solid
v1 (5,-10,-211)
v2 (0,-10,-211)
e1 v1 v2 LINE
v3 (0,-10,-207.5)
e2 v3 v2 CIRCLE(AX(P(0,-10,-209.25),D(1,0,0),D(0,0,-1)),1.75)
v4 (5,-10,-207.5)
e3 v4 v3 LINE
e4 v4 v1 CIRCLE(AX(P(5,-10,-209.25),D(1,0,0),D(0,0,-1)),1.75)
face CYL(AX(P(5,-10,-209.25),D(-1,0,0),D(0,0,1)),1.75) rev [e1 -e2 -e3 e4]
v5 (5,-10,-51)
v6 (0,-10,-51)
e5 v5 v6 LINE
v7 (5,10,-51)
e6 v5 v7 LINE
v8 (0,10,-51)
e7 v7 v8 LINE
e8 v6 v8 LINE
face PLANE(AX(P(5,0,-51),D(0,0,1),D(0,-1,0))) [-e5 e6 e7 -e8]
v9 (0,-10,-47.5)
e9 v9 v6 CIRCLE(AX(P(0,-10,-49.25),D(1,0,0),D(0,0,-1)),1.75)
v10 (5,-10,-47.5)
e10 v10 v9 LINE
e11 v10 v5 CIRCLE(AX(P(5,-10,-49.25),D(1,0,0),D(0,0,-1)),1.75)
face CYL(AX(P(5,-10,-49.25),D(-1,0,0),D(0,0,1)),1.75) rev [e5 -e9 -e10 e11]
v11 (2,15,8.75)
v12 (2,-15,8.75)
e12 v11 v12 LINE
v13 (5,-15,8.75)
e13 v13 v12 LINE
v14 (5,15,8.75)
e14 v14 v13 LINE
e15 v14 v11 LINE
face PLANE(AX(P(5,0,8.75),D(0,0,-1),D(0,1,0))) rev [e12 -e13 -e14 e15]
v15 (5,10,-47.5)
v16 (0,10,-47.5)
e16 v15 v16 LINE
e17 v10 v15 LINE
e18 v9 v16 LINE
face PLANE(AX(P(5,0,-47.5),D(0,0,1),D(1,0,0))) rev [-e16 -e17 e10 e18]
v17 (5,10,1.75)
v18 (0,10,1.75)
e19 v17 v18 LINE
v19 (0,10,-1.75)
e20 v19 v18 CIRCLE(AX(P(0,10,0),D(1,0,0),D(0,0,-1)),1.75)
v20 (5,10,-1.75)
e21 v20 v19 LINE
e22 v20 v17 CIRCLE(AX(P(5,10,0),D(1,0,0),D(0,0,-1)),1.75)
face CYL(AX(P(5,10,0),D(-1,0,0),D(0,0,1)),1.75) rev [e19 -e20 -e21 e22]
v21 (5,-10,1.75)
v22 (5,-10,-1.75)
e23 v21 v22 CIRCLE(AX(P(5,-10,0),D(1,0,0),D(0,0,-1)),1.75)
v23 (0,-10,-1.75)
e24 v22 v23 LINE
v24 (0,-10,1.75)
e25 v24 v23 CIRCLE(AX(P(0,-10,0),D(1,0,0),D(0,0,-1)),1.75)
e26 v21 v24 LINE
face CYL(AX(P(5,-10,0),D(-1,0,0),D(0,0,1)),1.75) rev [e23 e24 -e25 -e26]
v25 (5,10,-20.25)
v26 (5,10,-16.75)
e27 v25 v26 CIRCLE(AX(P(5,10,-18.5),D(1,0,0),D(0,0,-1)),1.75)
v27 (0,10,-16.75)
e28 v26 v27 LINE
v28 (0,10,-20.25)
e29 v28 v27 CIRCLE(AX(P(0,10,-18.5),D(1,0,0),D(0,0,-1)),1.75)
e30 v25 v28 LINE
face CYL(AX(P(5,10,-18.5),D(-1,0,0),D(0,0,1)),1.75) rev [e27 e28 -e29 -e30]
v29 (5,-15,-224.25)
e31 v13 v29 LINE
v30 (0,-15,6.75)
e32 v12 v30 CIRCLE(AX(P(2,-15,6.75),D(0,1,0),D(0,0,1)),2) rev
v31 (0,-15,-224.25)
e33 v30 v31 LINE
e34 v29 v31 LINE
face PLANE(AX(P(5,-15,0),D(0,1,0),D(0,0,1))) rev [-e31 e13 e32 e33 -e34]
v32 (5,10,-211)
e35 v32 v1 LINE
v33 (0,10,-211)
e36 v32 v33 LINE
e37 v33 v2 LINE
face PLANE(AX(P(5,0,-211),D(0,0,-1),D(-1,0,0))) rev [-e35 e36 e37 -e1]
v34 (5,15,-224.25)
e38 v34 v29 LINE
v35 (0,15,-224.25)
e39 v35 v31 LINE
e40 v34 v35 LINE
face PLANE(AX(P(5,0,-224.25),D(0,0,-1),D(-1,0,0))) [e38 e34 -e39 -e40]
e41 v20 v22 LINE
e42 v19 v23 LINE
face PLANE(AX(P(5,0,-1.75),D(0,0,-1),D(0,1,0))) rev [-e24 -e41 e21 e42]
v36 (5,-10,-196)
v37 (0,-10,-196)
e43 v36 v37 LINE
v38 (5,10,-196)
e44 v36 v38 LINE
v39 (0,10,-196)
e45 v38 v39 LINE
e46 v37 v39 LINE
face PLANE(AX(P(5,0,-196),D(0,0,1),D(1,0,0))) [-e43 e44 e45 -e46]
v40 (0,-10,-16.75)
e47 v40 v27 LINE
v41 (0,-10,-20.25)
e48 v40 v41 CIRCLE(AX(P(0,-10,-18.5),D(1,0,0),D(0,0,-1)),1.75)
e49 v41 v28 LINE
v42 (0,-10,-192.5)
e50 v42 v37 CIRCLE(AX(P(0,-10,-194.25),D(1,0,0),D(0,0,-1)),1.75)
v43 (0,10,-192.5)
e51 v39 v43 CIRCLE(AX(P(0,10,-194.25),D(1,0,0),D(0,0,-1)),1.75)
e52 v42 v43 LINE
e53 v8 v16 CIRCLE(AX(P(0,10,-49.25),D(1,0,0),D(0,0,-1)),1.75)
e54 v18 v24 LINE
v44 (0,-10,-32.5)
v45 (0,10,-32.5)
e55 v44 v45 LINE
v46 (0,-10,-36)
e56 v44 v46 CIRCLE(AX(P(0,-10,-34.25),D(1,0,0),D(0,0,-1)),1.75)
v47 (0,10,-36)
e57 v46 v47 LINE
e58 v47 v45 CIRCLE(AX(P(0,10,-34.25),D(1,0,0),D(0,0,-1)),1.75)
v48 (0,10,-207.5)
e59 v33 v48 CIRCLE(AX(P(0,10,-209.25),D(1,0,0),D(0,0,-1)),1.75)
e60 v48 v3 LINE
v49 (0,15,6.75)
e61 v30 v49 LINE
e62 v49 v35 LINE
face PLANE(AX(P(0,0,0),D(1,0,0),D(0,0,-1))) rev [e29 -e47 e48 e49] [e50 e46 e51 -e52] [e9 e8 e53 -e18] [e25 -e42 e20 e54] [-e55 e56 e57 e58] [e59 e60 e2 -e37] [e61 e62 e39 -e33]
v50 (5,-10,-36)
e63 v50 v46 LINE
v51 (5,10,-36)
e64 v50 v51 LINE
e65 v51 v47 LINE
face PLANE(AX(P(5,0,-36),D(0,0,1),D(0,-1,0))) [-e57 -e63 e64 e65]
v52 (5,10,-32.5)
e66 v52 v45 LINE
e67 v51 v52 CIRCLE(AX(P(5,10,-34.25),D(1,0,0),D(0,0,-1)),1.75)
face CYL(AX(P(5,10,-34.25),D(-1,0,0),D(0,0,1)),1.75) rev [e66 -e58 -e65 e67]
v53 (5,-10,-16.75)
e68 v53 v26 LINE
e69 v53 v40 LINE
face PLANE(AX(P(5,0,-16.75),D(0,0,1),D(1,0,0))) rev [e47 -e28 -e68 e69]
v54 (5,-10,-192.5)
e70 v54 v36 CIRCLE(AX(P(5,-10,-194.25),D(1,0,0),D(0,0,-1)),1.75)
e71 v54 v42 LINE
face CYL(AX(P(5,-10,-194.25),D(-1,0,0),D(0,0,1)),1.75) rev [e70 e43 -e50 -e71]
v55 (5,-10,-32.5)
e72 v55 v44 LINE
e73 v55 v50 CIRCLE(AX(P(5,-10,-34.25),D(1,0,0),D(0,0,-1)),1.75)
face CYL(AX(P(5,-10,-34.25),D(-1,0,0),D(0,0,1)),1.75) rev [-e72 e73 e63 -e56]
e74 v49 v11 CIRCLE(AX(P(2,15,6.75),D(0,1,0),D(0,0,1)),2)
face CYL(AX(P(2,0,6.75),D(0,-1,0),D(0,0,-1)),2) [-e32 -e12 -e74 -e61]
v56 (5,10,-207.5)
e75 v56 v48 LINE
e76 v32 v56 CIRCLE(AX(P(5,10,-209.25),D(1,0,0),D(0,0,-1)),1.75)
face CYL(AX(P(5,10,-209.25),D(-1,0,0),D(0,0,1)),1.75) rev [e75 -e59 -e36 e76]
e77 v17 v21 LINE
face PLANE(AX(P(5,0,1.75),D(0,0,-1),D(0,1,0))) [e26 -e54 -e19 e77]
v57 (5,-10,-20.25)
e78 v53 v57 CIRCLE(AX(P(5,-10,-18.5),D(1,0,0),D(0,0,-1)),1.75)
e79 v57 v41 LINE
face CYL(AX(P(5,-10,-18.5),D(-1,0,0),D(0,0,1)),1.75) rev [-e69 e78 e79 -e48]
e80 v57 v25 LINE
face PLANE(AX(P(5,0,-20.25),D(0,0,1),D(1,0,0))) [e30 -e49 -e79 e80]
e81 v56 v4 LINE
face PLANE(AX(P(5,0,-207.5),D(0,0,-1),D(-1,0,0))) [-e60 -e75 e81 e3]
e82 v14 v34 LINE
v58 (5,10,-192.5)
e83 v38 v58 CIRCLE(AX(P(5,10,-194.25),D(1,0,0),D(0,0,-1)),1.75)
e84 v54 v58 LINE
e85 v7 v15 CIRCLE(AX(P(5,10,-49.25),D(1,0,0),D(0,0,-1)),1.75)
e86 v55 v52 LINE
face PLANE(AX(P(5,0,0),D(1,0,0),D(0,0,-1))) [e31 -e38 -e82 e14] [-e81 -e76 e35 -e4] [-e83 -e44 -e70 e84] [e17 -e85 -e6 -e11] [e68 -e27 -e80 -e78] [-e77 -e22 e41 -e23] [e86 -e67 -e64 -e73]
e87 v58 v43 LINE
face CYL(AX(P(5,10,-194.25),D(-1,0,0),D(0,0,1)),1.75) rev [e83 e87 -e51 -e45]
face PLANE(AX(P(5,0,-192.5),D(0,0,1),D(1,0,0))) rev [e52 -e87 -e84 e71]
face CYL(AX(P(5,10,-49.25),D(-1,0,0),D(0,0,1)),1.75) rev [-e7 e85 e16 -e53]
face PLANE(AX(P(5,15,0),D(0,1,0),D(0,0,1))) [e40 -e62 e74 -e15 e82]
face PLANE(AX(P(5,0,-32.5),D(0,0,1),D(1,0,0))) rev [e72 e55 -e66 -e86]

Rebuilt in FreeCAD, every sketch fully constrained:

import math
import FreeCAD as App
import Part
import Sketcher
from FreeCAD import Vector


def edges_at(feature, points):
    """Names of the edges that pass closest to the given points."""
    edges = feature.Shape.Edges
    near = lambda p: min(range(len(edges)), key=lambda i: edges[i].distToShape(Part.Vertex(*p))[0])
    return sorted({f"Edge{near(p) + 1}" for p in points})

doc = App.newDocument("Part")
body = doc.addObject("PartDesign::Body", "Body")

sketch1 = doc.addObject("Sketcher::SketchObject", "Sketch")
body.addObject(sketch1)
sketch1.AttachmentSupport = (doc.YZ_Plane, [""])
sketch1.MapMode = "FlatFace"
sketch1.addGeometry(Part.LineSegment(Vector(-15, -224.25, 0), Vector(15, -224.25, 0)), False)
sketch1.addGeometry(Part.LineSegment(Vector(15, -224.25, 0), Vector(15, 8.75, 0)), False)
sketch1.addGeometry(Part.LineSegment(Vector(15, 8.75, 0), Vector(-15, 8.75, 0)), False)
sketch1.addGeometry(Part.LineSegment(Vector(-15, 8.75, 0), Vector(-15, -224.25, 0)), False)
sketch1.addGeometry(Part.ArcOfCircle(Part.Circle(Vector(-10, 0, 0), Vector(0, 0, 1), 1.75), math.radians(90), math.radians(270)), False)
sketch1.addGeometry(Part.LineSegment(Vector(-10, 1.75, 0), Vector(10, 1.75, 0)), False)
sketch1.addGeometry(Part.ArcOfCircle(Part.Circle(Vector(10, 0, 0), Vector(0, 0, 1), 1.75), math.radians(-90), math.radians(90)), False)
sketch1.addGeometry(Part.LineSegment(Vector(10, -1.75, 0), Vector(-10, -1.75, 0)), False)
sketch1.addGeometry(Part.ArcOfCircle(Part.Circle(Vector(-10, -18.5, 0), Vector(0, 0, 1), 1.75), math.radians(90), math.radians(270)), False)
sketch1.addGeometry(Part.LineSegment(Vector(-10, -16.75, 0), Vector(10, -16.75, 0)), False)
sketch1.addGeometry(Part.ArcOfCircle(Part.Circle(Vector(10, -18.5, 0), Vector(0, 0, 1), 1.75), math.radians(-90), math.radians(90)), False)
sketch1.addGeometry(Part.LineSegment(Vector(10, -20.25, 0), Vector(-10, -20.25, 0)), False)
sketch1.addGeometry(Part.ArcOfCircle(Part.Circle(Vector(10, -209.25, 0), Vector(0, 0, 1), 1.75), math.radians(-90), math.radians(90)), False)
sketch1.addGeometry(Part.LineSegment(Vector(10, -211, 0), Vector(-10, -211, 0)), False)
sketch1.addGeometry(Part.ArcOfCircle(Part.Circle(Vector(-10, -209.25, 0), Vector(0, 0, 1), 1.75), math.radians(90), math.radians(270)), False)
sketch1.addGeometry(Part.LineSegment(Vector(-10, -207.5, 0), Vector(10, -207.5, 0)), False)
sketch1.addGeometry(Part.LineSegment(Vector(10, -36, 0), Vector(-10, -36, 0)), False)
sketch1.addGeometry(Part.ArcOfCircle(Part.Circle(Vector(-10, -34.25, 0), Vector(0, 0, 1), 1.75), math.radians(90), math.radians(270)), False)
sketch1.addGeometry(Part.LineSegment(Vector(-10, -32.5, 0), Vector(10, -32.5, 0)), False)
sketch1.addGeometry(Part.ArcOfCircle(Part.Circle(Vector(10, -34.25, 0), Vector(0, 0, 1), 1.75), math.radians(-90), math.radians(90)), False)
sketch1.addGeometry(Part.LineSegment(Vector(10, -51, 0), Vector(-10, -51, 0)), False)
sketch1.addGeometry(Part.ArcOfCircle(Part.Circle(Vector(-10, -49.25, 0), Vector(0, 0, 1), 1.75), math.radians(90), math.radians(270)), False)
sketch1.addGeometry(Part.LineSegment(Vector(-10, -47.5, 0), Vector(10, -47.5, 0)), False)
sketch1.addGeometry(Part.ArcOfCircle(Part.Circle(Vector(10, -49.25, 0), Vector(0, 0, 1), 1.75), math.radians(-90), math.radians(90)), False)
sketch1.addGeometry(Part.LineSegment(Vector(10, -196, 0), Vector(-10, -196, 0)), False)
sketch1.addGeometry(Part.ArcOfCircle(Part.Circle(Vector(-10, -194.25, 0), Vector(0, 0, 1), 1.75), math.radians(90), math.radians(270)), False)
sketch1.addGeometry(Part.LineSegment(Vector(-10, -192.5, 0), Vector(10, -192.5, 0)), False)
sketch1.addGeometry(Part.ArcOfCircle(Part.Circle(Vector(10, -194.25, 0), Vector(0, 0, 1), 1.75), math.radians(-90), math.radians(90)), False)
sketch1.addConstraint(Sketcher.Constraint("Coincident", 0, 2, 1, 1))
sketch1.addConstraint(Sketcher.Constraint("Coincident", 1, 2, 2, 1))
sketch1.addConstraint(Sketcher.Constraint("Coincident", 2, 2, 3, 1))
sketch1.addConstraint(Sketcher.Constraint("Coincident", 3, 2, 0, 1))
sketch1.addConstraint(Sketcher.Constraint("Tangent", 4, 1, 5, 1))
sketch1.addConstraint(Sketcher.Constraint("Tangent", 5, 2, 6, 2))
sketch1.addConstraint(Sketcher.Constraint("Tangent", 6, 1, 7, 1))
sketch1.addConstraint(Sketcher.Constraint("Tangent", 7, 2, 4, 2))
sketch1.addConstraint(Sketcher.Constraint("Tangent", 8, 1, 9, 1))
sketch1.addConstraint(Sketcher.Constraint("Tangent", 9, 2, 10, 2))
sketch1.addConstraint(Sketcher.Constraint("Tangent", 10, 1, 11, 1))
sketch1.addConstraint(Sketcher.Constraint("Tangent", 11, 2, 8, 2))
sketch1.addConstraint(Sketcher.Constraint("Tangent", 12, 1, 13, 1))
sketch1.addConstraint(Sketcher.Constraint("Tangent", 13, 2, 14, 2))
sketch1.addConstraint(Sketcher.Constraint("Tangent", 14, 1, 15, 1))
sketch1.addConstraint(Sketcher.Constraint("Tangent", 15, 2, 12, 2))
sketch1.addConstraint(Sketcher.Constraint("Tangent", 16, 2, 17, 2))
sketch1.addConstraint(Sketcher.Constraint("Tangent", 17, 1, 18, 1))
sketch1.addConstraint(Sketcher.Constraint("Tangent", 18, 2, 19, 2))
sketch1.addConstraint(Sketcher.Constraint("Tangent", 19, 1, 16, 1))
sketch1.addConstraint(Sketcher.Constraint("Tangent", 20, 2, 21, 2))
sketch1.addConstraint(Sketcher.Constraint("Tangent", 21, 1, 22, 1))
sketch1.addConstraint(Sketcher.Constraint("Tangent", 22, 2, 23, 2))
sketch1.addConstraint(Sketcher.Constraint("Tangent", 23, 1, 20, 1))
sketch1.addConstraint(Sketcher.Constraint("Tangent", 24, 2, 25, 2))
sketch1.addConstraint(Sketcher.Constraint("Tangent", 25, 1, 26, 1))
sketch1.addConstraint(Sketcher.Constraint("Tangent", 26, 2, 27, 2))
sketch1.addConstraint(Sketcher.Constraint("Tangent", 27, 1, 24, 1))
sketch1.addConstraint(Sketcher.Constraint("Horizontal", 0))
sketch1.addConstraint(Sketcher.Constraint("Vertical", 1))
sketch1.addConstraint(Sketcher.Constraint("Horizontal", 2))
sketch1.addConstraint(Sketcher.Constraint("Vertical", 3))
sketch1.addConstraint(Sketcher.Constraint("Horizontal", 5))
sketch1.addConstraint(Sketcher.Constraint("Horizontal", 7))
sketch1.addConstraint(Sketcher.Constraint("Horizontal", 9))
sketch1.addConstraint(Sketcher.Constraint("Horizontal", 11))
sketch1.addConstraint(Sketcher.Constraint("Horizontal", 13))
sketch1.addConstraint(Sketcher.Constraint("Horizontal", 15))
sketch1.addConstraint(Sketcher.Constraint("Horizontal", 16))
sketch1.addConstraint(Sketcher.Constraint("Horizontal", 18))
sketch1.addConstraint(Sketcher.Constraint("Horizontal", 20))
sketch1.addConstraint(Sketcher.Constraint("Horizontal", 22))
sketch1.addConstraint(Sketcher.Constraint("Horizontal", 24))
sketch1.addConstraint(Sketcher.Constraint("Horizontal", 26))
sketch1.addConstraint(Sketcher.Constraint("Equal", 6, 8))
sketch1.addConstraint(Sketcher.Constraint("Equal", 10, 12))
sketch1.addConstraint(Sketcher.Constraint("Equal", 14, 17))
sketch1.addConstraint(Sketcher.Constraint("Equal", 19, 21))
sketch1.addConstraint(Sketcher.Constraint("Equal", 23, 25))
sketch1.addConstraint(Sketcher.Constraint("Symmetric", 4, 3, 6, 3, -1, 1))
sketch1.addConstraint(Sketcher.Constraint("Vertical", 4, 3, 8, 3))
sketch1.addConstraint(Sketcher.Constraint("Vertical", 6, 3, 10, 3))
sketch1.addConstraint(Sketcher.Constraint("Vertical", 10, 3, 12, 3))
sketch1.addConstraint(Sketcher.Constraint("Vertical", 8, 3, 14, 3))
sketch1.addConstraint(Sketcher.Constraint("Vertical", 14, 3, 17, 3))
sketch1.addConstraint(Sketcher.Constraint("Vertical", 12, 3, 19, 3))
sketch1.addConstraint(Sketcher.Constraint("Vertical", 17, 3, 21, 3))
sketch1.addConstraint(Sketcher.Constraint("Vertical", 19, 3, 23, 3))
sketch1.addConstraint(Sketcher.Constraint("Vertical", 21, 3, 25, 3))
sketch1.addConstraint(Sketcher.Constraint("Vertical", 23, 3, 27, 3))
sketch1.addConstraint(Sketcher.Constraint("DistanceX", 0, 1, 0, 2, 30.0))
sketch1.addConstraint(Sketcher.Constraint("DistanceX", 5, 1, 5, 2, 20.0))
sketch1.addConstraint(Sketcher.Constraint("DistanceY", 1, 1, 1, 2, 233.0))
sketch1.addConstraint(Sketcher.Constraint("Radius", 4, 1.75))
sketch1.addConstraint(Sketcher.Constraint("DistanceX", -1, 1, 0, 2, 15.0))
sketch1.addConstraint(Sketcher.Constraint("DistanceY", 12, 1, -1, 1, 211.0))
sketch1.addConstraint(Sketcher.Constraint("DistanceY", 16, 2, -1, 1, 36.0))
sketch1.addConstraint(Sketcher.Constraint("DistanceY", 20, 2, -1, 1, 51.0))
sketch1.addConstraint(Sketcher.Constraint("DistanceY", 24, 2, -1, 1, 196.0))
sketch1.addConstraint(Sketcher.Constraint("DistanceY", 0, 2, 12, 3, 15.0))
sketch1.addConstraint(Sketcher.Constraint("DistanceY", 8, 1, 7, 2, 15.0))
pad1 = doc.addObject("PartDesign::Pad", "Pad")
body.addObject(pad1)
pad1.Profile = sketch1
pad1.Length = 5
doc.recompute()

fillet = doc.addObject("PartDesign::Fillet", "Fillet")
body.addObject(fillet)
fillet.Base = (pad1, edges_at(pad1, [(0, 0, 8.75)]))
fillet.Radius = 2

doc.recompute()
